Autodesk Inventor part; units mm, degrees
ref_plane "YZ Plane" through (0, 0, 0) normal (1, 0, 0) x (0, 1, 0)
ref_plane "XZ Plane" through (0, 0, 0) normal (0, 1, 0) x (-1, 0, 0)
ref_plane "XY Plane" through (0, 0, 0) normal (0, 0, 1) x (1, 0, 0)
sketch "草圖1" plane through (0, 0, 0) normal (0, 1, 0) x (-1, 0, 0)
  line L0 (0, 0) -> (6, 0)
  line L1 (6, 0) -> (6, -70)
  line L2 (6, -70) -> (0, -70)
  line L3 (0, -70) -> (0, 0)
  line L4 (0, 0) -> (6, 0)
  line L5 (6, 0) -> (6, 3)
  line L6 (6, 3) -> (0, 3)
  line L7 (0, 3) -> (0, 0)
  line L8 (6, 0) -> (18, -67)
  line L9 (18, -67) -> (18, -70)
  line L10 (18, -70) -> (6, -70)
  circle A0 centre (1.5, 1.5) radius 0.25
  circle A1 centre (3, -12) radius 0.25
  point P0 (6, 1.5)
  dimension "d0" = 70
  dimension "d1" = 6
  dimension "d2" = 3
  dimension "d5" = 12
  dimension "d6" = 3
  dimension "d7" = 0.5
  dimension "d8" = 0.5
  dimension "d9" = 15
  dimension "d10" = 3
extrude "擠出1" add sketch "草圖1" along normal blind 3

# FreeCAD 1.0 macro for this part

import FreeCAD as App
import Part
import Sketcher
from FreeCAD import Vector

doc = App.newDocument("Part")
params = doc.addObject("Spreadsheet::Sheet", "Params")
for row, (alias, value) in enumerate([
    ("sketch1_diameter", "0.5 mm"),
    ("sketch1_width", "6 mm"),
    ("sketch1_height", "3 mm"),
    ("pad1_length", "3 mm"),
], start=1):
    params.set(f"A{row}", alias)
    params.set(f"B{row}", "=" + value)
    params.setAlias(f"B{row}", alias)

body = doc.addObject("PartDesign::Body", "Body")

# Sketch on XZ plane
sketch1 = body.newObject("Sketcher::SketchObject", "Sketch")
sketch1.AttachmentSupport = (doc.getObject("XZ_Plane"), [""])
sketch1.MapMode = "FlatFace"
sketch1.addGeometry([
    Part.LineSegment(Vector(0, 3, 0), Vector(0, -70, 0)),  # 0
    Part.LineSegment(Vector(0, -70, 0), Vector(-18, -70, 0)),  # 1
    Part.LineSegment(Vector(-18, -70, 0), Vector(-18, -67, 0)),  # 2
    Part.LineSegment(Vector(-18, -67, 0), Vector(-6, 0, 0)),  # 3
    Part.LineSegment(Vector(-6, 0, 0), Vector(-6, 3, 0)),  # 4
    Part.LineSegment(Vector(-6, 3, 0), Vector(0, 3, 0)),  # 5
    Part.Circle(Vector(-1.5, 1.5, 0), Vector(0, 0, 1), 0.25),  # 6
    Part.Circle(Vector(-3, -12, 0), Vector(0, 0, 1), 0.25),  # 7
], False)
sketch1.addConstraint([
    Sketcher.Constraint("Coincident", 0, 2, 1, 1),
    Sketcher.Constraint("Coincident", 1, 2, 2, 1),
    Sketcher.Constraint("Coincident", 2, 2, 3, 1),
    Sketcher.Constraint("Coincident", 3, 2, 4, 1),
    Sketcher.Constraint("Coincident", 4, 2, 5, 1),
    Sketcher.Constraint("Coincident", 5, 2, 0, 1),
    Sketcher.Constraint("Vertical", 0),
    Sketcher.Constraint("Horizontal", 1),
    Sketcher.Constraint("Vertical", 2),
    Sketcher.Constraint("Vertical", 4),
    Sketcher.Constraint("Horizontal", 5),
    Sketcher.Constraint("Equal", 6, 7),
    Sketcher.Constraint("PointOnObject", 0, 2, -2),
    Sketcher.Constraint("PointOnObject", 3, 2, -1),
    Sketcher.Constraint("Equal", 2, 4),
    Sketcher.Constraint("Diameter", 6, 0.5),
    Sketcher.Constraint("DistanceX", 5, 1, 5, 2, 6.0),
    Sketcher.Constraint("DistanceY", 2, 1, 2, 2, 3.0),
    Sketcher.Constraint("DistanceX", 7, 3, -1, 1, 3.0),
    Sketcher.Constraint("DistanceY", 7, 3, -1, 1, 12.0),
    Sketcher.Constraint("DistanceY", 0, 2, -1, 1, 70.0),
    Sketcher.Constraint("DistanceX", 1, 2, 7, 3, 15.0),
    Sketcher.Constraint("DistanceX", 6, 3, -1, 1, 1.5),
    Sketcher.Constraint("DistanceY", -1, 1, 6, 3, 1.5),
])
sketch1.setExpression("Constraints[15]", "Params.sketch1_diameter")
sketch1.setExpression("Constraints[16]", "Params.sketch1_width")
sketch1.setExpression("Constraints[17]", "Params.sketch1_height")
pad1 = body.newObject("PartDesign::Pad", "Pad")
pad1.Profile = sketch1
pad1.setExpression("Length", "Params.pad1_length")
pad1.Reversed = True

doc.recompute()
